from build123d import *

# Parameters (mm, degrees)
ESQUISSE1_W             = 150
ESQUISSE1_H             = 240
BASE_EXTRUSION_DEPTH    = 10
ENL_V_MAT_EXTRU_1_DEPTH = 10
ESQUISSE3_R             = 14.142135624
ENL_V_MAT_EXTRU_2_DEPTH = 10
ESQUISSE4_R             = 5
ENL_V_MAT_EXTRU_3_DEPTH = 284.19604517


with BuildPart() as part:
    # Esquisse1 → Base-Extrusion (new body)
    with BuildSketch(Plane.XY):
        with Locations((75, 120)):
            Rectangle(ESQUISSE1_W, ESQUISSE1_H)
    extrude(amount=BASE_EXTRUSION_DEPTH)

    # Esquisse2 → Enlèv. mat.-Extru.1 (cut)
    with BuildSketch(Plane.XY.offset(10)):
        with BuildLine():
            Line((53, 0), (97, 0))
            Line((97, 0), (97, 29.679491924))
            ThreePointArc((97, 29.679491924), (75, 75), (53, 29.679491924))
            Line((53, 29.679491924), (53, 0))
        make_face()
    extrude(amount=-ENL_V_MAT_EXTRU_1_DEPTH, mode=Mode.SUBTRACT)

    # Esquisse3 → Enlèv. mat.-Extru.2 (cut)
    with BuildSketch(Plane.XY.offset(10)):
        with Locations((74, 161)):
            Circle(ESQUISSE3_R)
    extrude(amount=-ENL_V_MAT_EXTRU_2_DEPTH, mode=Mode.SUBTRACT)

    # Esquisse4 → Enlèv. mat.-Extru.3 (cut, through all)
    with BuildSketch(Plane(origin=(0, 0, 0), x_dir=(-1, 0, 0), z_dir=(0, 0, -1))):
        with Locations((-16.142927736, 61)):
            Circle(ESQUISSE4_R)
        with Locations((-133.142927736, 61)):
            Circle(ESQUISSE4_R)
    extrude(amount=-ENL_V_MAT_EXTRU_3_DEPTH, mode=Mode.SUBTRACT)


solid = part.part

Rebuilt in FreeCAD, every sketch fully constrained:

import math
import FreeCAD as App
import Part
import Sketcher
from FreeCAD import Vector
Q = App.Units.Quantity

doc = App.newDocument("Part")
params = doc.addObject("Spreadsheet::Sheet", "Params")
for row, (alias, value) in enumerate([
    ("sketch1_width", "150 mm"),
    ("sketch1_height", "240 mm"),
    ("pad1_length", "10 mm"),
    ("sketch2_radius", "28 mm"),
    ("sketch2_width", "44 mm"),
    ("pocket1_length", "10 mm"),
    ("pocket2_length", "10 mm"),
    ("sketch4_diameter", "10 mm"),
], start=1):
    params.set(f"A{row}", alias)
    params.set(f"B{row}", "=" + value)
    params.setAlias(f"B{row}", alias)

body = doc.addObject("PartDesign::Body", "Body")

sketch1 = body.newObject("Sketcher::SketchObject", "Sketch")
sketch1.AttachmentSupport = (doc.getObject("XY_Plane"), [""])
sketch1.MapMode = "FlatFace"
sketch1.addGeometry(Part.LineSegment(Vector(0, 240, 0), Vector(0, 0, 0)), False)
sketch1.addGeometry(Part.LineSegment(Vector(0, 0, 0), Vector(150, 0, 0)), False)
sketch1.addGeometry(Part.LineSegment(Vector(150, 0, 0), Vector(150, 240, 0)), False)
sketch1.addGeometry(Part.LineSegment(Vector(150, 240, 0), Vector(0, 240, 0)), False)
sketch1.addConstraint(Sketcher.Constraint("Coincident", 0, 2, 1, 1))
sketch1.addConstraint(Sketcher.Constraint("Coincident", 1, 2, 2, 1))
sketch1.addConstraint(Sketcher.Constraint("Coincident", 2, 2, 3, 1))
sketch1.addConstraint(Sketcher.Constraint("Coincident", 3, 2, 0, 1))
sketch1.addConstraint(Sketcher.Constraint("Vertical", 0))
sketch1.addConstraint(Sketcher.Constraint("Horizontal", 1))
sketch1.addConstraint(Sketcher.Constraint("Vertical", 2))
sketch1.addConstraint(Sketcher.Constraint("Horizontal", 3))
sketch1.addConstraint(Sketcher.Constraint("Coincident", 0, 2, -1, 1))
sketch1.addConstraint(Sketcher.Constraint("DistanceX", 1, 1, 1, 2, Q("150 mm")))
sketch1.addConstraint(Sketcher.Constraint("DistanceY", 0, 2, 0, 1, Q("240 mm")))
sketch1.setExpression("Constraints[9]", "Params.sketch1_width")
sketch1.setExpression("Constraints[10]", "Params.sketch1_height")
pad1 = body.newObject("PartDesign::Pad", "Pad")
pad1.Profile = sketch1
pad1.setExpression("Length", "Params.pad1_length")

sketch2 = body.newObject("Sketcher::SketchObject", "Sketch001")
sketch2.AttachmentSupport = (doc.getObject("XY_Plane"), [""])
sketch2.MapMode = "FlatFace"
sketch2.AttachmentOffset = App.Placement(Vector(0, 0, 10), App.Rotation())
sketch2.addGeometry(Part.LineSegment(Vector(53, 0, 0), Vector(97, 0, 0)), False)
sketch2.addGeometry(Part.LineSegment(Vector(97, 0, 0), Vector(97, 29.679492, 0)), False)
sketch2.addGeometry(Part.ArcOfCircle(Part.Circle(Vector(75, 47, 0), Vector(0, 0, 1), 28), math.radians(-38.213211), math.radians(218.213211)), False)
sketch2.addGeometry(Part.LineSegment(Vector(53, 29.679492, 0), Vector(53, 0, 0)), False)
sketch2.addConstraint(Sketcher.Constraint("Coincident", 0, 2, 1, 1))
sketch2.addConstraint(Sketcher.Constraint("Coincident", 1, 2, 2, 1))
sketch2.addConstraint(Sketcher.Constraint("Coincident", 2, 2, 3, 1))
sketch2.addConstraint(Sketcher.Constraint("Coincident", 3, 2, 0, 1))
sketch2.addConstraint(Sketcher.Constraint("Horizontal", 0))
sketch2.addConstraint(Sketcher.Constraint("Vertical", 1))
sketch2.addConstraint(Sketcher.Constraint("Vertical", 3))
sketch2.addConstraint(Sketcher.Constraint("PointOnObject", 0, 2, -1))
sketch2.addConstraint(Sketcher.Constraint("Horizontal", 1, 2, 2, 2))
sketch2.addConstraint(Sketcher.Constraint("Radius", 2, Q("28 mm")))
sketch2.addConstraint(Sketcher.Constraint("DistanceX", 0, 1, 0, 2, Q("44 mm")))
sketch2.addConstraint(Sketcher.Constraint("DistanceX", -1, 1, 2, 3, Q("75 mm")))
sketch2.addConstraint(Sketcher.Constraint("DistanceY", -1, 1, 2, 3, Q("47 mm")))
sketch2.setExpression("Constraints[9]", "Params.sketch2_radius")
sketch2.setExpression("Constraints[10]", "Params.sketch2_width")
pocket1 = body.newObject("PartDesign::Pocket", "Pocket")
pocket1.Profile = sketch2
pocket1.setExpression("Length", "Params.pocket1_length")

sketch3 = body.newObject("Sketcher::SketchObject", "Sketch002")
sketch3.AttachmentSupport = (doc.getObject("XY_Plane"), [""])
sketch3.MapMode = "FlatFace"
sketch3.AttachmentOffset = App.Placement(Vector(0, 0, 10), App.Rotation())
sketch3.addGeometry(Part.Circle(Vector(74, 161, 0), Vector(0, 0, 1), 14.142136), False)
sketch3.addConstraint(Sketcher.Constraint("DistanceX", -1, 1, 0, 3, Q("74 mm")))
sketch3.addConstraint(Sketcher.Constraint("DistanceY", -1, 1, 0, 3, Q("161 mm")))
sketch3.addConstraint(Sketcher.Constraint("Diameter", 0, Q("28.284271 mm")))
pocket2 = body.newObject("PartDesign::Pocket", "Pocket001")
pocket2.Profile = sketch3
pocket2.setExpression("Length", "Params.pocket2_length")

sketch4 = body.newObject("Sketcher::SketchObject", "Sketch003")
sketch4.AttachmentSupport = (doc.getObject("XY_Plane"), [""])
sketch4.MapMode = "FlatFace"
sketch4.addGeometry(Part.Circle(Vector(16.142928, 61, 0), Vector(0, 0, 1), 5), False)
sketch4.addGeometry(Part.Circle(Vector(133.142928, 61, 0), Vector(0, 0, 1), 5), False)
sketch4.addConstraint(Sketcher.Constraint("Equal", 0, 1))
sketch4.addConstraint(Sketcher.Constraint("Horizontal", 0, 3, 1, 3))
sketch4.addConstraint(Sketcher.Constraint("Diameter", 0, Q("10 mm")))
sketch4.addConstraint(Sketcher.Constraint("DistanceY", -1, 1, 0, 3, Q("61 mm")))
sketch4.addConstraint(Sketcher.Constraint("DistanceX", 0, 3, 1, 3, Q("117 mm")))
sketch4.addConstraint(Sketcher.Constraint("DistanceX", -1, 1, 0, 3, Q("16.142928 mm")))
sketch4.setExpression("Constraints[2]", "Params.sketch4_diameter")
pocket3 = body.newObject("PartDesign::Pocket", "Pocket002")
pocket3.Profile = sketch4
pocket3.Type = "ThroughAll"
pocket3.Reversed = True

doc.recompute()
